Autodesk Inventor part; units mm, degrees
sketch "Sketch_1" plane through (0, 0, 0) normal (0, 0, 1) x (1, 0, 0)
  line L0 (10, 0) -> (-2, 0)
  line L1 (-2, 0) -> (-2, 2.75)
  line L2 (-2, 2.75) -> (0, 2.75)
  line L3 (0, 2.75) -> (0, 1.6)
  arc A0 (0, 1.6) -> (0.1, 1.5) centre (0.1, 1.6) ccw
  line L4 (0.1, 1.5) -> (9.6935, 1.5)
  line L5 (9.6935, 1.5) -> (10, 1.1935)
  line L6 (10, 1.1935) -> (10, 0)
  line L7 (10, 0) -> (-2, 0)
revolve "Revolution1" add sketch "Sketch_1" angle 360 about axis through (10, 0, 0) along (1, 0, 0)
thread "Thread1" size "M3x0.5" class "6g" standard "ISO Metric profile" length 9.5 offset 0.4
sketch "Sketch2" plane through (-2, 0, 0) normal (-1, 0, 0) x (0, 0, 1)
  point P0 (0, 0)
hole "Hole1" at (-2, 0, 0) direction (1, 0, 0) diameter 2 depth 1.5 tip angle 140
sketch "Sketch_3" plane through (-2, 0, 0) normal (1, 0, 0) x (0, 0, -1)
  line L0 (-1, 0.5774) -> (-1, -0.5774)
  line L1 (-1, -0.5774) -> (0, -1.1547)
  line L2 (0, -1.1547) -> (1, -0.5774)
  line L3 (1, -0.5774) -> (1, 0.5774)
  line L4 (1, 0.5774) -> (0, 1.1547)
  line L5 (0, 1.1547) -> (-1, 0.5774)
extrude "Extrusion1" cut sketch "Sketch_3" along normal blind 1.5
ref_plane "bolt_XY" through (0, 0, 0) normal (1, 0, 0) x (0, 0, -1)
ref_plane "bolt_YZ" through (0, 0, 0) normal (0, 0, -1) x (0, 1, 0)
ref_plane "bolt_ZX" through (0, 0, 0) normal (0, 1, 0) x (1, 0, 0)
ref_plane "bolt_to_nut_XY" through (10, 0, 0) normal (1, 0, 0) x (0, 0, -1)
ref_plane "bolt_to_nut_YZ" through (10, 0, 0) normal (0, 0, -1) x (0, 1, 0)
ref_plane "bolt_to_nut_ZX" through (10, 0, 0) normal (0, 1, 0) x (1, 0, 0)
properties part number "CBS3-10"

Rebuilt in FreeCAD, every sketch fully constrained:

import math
import FreeCAD as App
import Part
import Sketcher
from FreeCAD import Vector
Q = App.Units.Quantity

doc = App.newDocument("Part")
params = doc.addObject("Spreadsheet::Sheet", "Params")
for row, (alias, value) in enumerate([
    ("sketch1_radius", "0.1 mm"),
    ("sketch1_width", "12 mm"),
    ("sketch1_width2", "2 mm"),
    ("sketch1_height", "1.15 mm"),
    ("sketch1_height2", "2.75 mm"),
    ("revolution_angle", "360 deg"),
    ("sketch2_diameter", "2 mm"),
    ("hole_diameter", "2 mm"),
    ("hole_depth", "1.5 mm"),
    ("pocket1_length", "1.5 mm"),
], start=1):
    params.set(f"A{row}", alias)
    params.set(f"B{row}", "=" + value)
    params.setAlias(f"B{row}", alias)

body = doc.addObject("PartDesign::Body", "Body")

# Sketch on XY plane
sketch1 = body.newObject("Sketcher::SketchObject", "Sketch")
sketch1.AttachmentSupport = (doc.getObject("XY_Plane"), [""])
sketch1.MapMode = "FlatFace"
sketch1.addGeometry([
    Part.LineSegment(Vector(-2, 0, 0), Vector(10, 0, 0)),  # 0
    Part.LineSegment(Vector(10, 0, 0), Vector(10, 1.19, 0)),  # 1
    Part.LineSegment(Vector(10, 1.19, 0), Vector(9.69, 1.5, 0)),  # 2
    Part.LineSegment(Vector(9.69, 1.5, 0), Vector(0.1, 1.5, 0)),  # 3
    Part.ArcOfCircle(Part.Circle(Vector(0.1, 1.6, 0), Vector(0, 0, 1), 0.1), math.radians(180), math.radians(270)),  # 4
    Part.LineSegment(Vector(0, 1.6, 0), Vector(0, 2.75, 0)),  # 5
    Part.LineSegment(Vector(0, 2.75, 0), Vector(-2, 2.75, 0)),  # 6
    Part.LineSegment(Vector(-2, 2.75, 0), Vector(-2, 0, 0)),  # 7
], False)
sketch1.addConstraint([
    Sketcher.Constraint("Coincident", 0, 2, 1, 1),
    Sketcher.Constraint("Coincident", 1, 2, 2, 1),
    Sketcher.Constraint("Coincident", 2, 2, 3, 1),
    Sketcher.Constraint("Tangent", 3, 2, 4, 2),
    Sketcher.Constraint("Tangent", 4, 1, 5, 1),
    Sketcher.Constraint("Coincident", 5, 2, 6, 1),
    Sketcher.Constraint("Coincident", 6, 2, 7, 1),
    Sketcher.Constraint("Coincident", 7, 2, 0, 1),
    Sketcher.Constraint("Horizontal", 0),
    Sketcher.Constraint("Vertical", 1),
    Sketcher.Constraint("Horizontal", 3),
    Sketcher.Constraint("Vertical", 5),
    Sketcher.Constraint("Horizontal", 6),
    Sketcher.Constraint("Vertical", 7),
    Sketcher.Constraint("PointOnObject", 0, 2, -1),
    Sketcher.Constraint("PointOnObject", 4, 1, -2),
    Sketcher.Constraint("Radius", 4, Q("0.1 mm")),
    Sketcher.Constraint("DistanceX", 0, 1, 0, 2, Q("12 mm")),
    Sketcher.Constraint("DistanceX", 6, 2, 6, 1, Q("2 mm")),
    Sketcher.Constraint("Angle", 2, Q("135 deg")),
    Sketcher.Constraint("DistanceY", 5, 1, 5, 2, Q("1.15 mm")),
    Sketcher.Constraint("DistanceY", 7, 2, 7, 1, Q("2.75 mm")),
    Sketcher.Constraint("DistanceX", 3, 2, 3, 1, Q("9.5935 mm")),
])
sketch1.setExpression("Constraints[16]", "Params.sketch1_radius")
sketch1.setExpression("Constraints[17]", "Params.sketch1_width")
sketch1.setExpression("Constraints[18]", "Params.sketch1_width2")
sketch1.setExpression("Constraints[20]", "Params.sketch1_height")
sketch1.setExpression("Constraints[21]", "Params.sketch1_height2")
revolution = body.newObject("PartDesign::Revolution", "Revolution")
revolution.Profile = sketch1
revolution.ReferenceAxis = (sketch1, ["H_Axis"])
revolution.setExpression("Angle", "Params.revolution_angle")

# Sketch on YZ plane
sketch2 = body.newObject("Sketcher::SketchObject", "Sketch001")
sketch2.AttachmentSupport = (doc.getObject("YZ_Plane"), [""])
sketch2.MapMode = "FlatFace"
sketch2.AttachmentOffset = App.Placement(Vector(0, 0, -2), App.Rotation())
sketch2.addGeometry(Part.Circle(Vector(0, 0, 0), Vector(0, 0, 1), 1), False)
sketch2.addConstraint([
    Sketcher.Constraint("Coincident", 0, 3, -1, 1),
    Sketcher.Constraint("Diameter", 0, Q("2 mm")),
])
sketch2.setExpression("Constraints[1]", "Params.sketch2_diameter")
doc.recompute()
hole = body.newObject("PartDesign::Hole", "Hole")
hole.Profile = sketch2
hole.ThreadType = "None"
hole.setExpression("Diameter", "Params.hole_diameter")
hole.DepthType = "Dimension"
hole.setExpression("Depth", "Params.hole_depth")
hole.DrillPoint = "Angled"
hole.DrillPointAngle = 140
hole.Reversed = True

# Sketch on YZ plane
sketch3 = body.newObject("Sketcher::SketchObject", "Sketch002")
sketch3.AttachmentSupport = (doc.getObject("YZ_Plane"), [""])
sketch3.MapMode = "FlatFace"
sketch3.AttachmentOffset = App.Placement(Vector(0, 0, -2), App.Rotation())
sketch3.addGeometry([
    Part.LineSegment(Vector(1.2, 0, 0), Vector(0.6, 1, 0)),  # 0
    Part.LineSegment(Vector(0.6, 1, 0), Vector(-0.6, 1, 0)),  # 1
    Part.LineSegment(Vector(-0.6, 1, 0), Vector(-1.2, 0, 0)),  # 2
    Part.LineSegment(Vector(-1.2, 0, 0), Vector(-0.6, -1, 0)),  # 3
    Part.LineSegment(Vector(-0.6, -1, 0), Vector(0.6, -1, 0)),  # 4
    Part.LineSegment(Vector(0.6, -1, 0), Vector(1.2, 0, 0)),  # 5
], False)
sketch3.addConstraint([
    Sketcher.Constraint("Coincident", 0, 2, 1, 1),
    Sketcher.Constraint("Coincident", 1, 2, 2, 1),
    Sketcher.Constraint("Coincident", 2, 2, 3, 1),
    Sketcher.Constraint("Coincident", 3, 2, 4, 1),
    Sketcher.Constraint("Coincident", 4, 2, 5, 1),
    Sketcher.Constraint("Coincident", 5, 2, 0, 1),
    Sketcher.Constraint("Horizontal", 1),
    Sketcher.Constraint("Horizontal", 4),
    Sketcher.Constraint("Symmetric", 0, 2, 3, 2, -1, 1),
    Sketcher.Constraint("Symmetric", 2, 2, 5, 2, -1, 1),
    Sketcher.Constraint("PointOnObject", 2, 2, -1),
    Sketcher.Constraint("Parallel", 2, 5),
    Sketcher.Constraint("Vertical", 1, 2, 3, 2),
    Sketcher.Constraint("DistanceY", -1, 1, 0, 2, Q("1 mm")),
    Sketcher.Constraint("DistanceX", 1, 2, 1, 1, Q("1.1548 mm")),
    Sketcher.Constraint("DistanceX", 2, 2, 0, 2, Q("1.732 mm")),
])
pocket1 = body.newObject("PartDesign::Pocket", "Pocket")
pocket1.Profile = sketch3
pocket1.setExpression("Length", "Params.pocket1_length")
pocket1.Reversed = True

doc.recompute()
